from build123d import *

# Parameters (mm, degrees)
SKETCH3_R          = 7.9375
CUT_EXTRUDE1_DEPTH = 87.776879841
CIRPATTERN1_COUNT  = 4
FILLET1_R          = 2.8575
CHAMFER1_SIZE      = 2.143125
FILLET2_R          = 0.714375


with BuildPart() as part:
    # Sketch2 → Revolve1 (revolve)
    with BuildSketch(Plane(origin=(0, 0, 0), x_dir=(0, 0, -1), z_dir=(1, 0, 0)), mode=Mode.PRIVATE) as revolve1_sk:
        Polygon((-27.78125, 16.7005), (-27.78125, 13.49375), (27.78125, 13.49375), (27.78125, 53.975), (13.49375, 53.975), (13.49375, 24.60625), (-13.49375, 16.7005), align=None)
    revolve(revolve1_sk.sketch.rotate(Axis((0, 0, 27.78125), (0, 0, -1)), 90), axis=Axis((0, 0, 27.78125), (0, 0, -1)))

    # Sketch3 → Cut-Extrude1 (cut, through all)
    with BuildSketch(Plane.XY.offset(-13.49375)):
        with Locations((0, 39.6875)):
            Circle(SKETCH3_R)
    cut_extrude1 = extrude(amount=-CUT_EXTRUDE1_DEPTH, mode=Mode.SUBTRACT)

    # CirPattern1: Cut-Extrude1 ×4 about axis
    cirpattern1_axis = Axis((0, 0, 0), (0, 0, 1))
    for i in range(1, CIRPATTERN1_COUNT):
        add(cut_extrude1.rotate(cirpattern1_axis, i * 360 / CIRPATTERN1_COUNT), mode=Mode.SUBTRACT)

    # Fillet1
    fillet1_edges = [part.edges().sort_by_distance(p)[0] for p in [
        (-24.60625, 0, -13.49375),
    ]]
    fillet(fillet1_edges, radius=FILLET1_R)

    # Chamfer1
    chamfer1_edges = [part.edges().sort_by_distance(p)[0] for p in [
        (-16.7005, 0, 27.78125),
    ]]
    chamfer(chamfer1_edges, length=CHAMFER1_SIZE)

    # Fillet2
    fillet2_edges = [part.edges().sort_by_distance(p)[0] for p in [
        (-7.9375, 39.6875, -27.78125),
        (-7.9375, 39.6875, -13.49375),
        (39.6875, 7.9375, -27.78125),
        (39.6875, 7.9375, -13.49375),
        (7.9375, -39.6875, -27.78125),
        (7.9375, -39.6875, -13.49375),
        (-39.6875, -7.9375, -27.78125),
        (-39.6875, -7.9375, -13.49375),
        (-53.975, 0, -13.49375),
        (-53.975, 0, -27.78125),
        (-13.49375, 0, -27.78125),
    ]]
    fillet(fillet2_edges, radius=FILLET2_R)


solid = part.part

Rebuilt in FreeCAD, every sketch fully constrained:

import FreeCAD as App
import Part
import Sketcher

V = App.Vector
Q = App.Units.Quantity


def edges_at(feature, points):
    """Names of the edges that pass closest to the given points."""
    edges = feature.Shape.Edges
    near = lambda p: min(range(len(edges)), key=lambda i: edges[i].distToShape(Part.Vertex(*p))[0])
    return sorted({f"Edge{near(p) + 1}" for p in points})


def add_polygon(sketch, points):
    """Adds a closed chain of lines whose ends are joined by coincident constraints."""
    first, n = sketch.GeometryCount, len(points)
    for a, b in zip(points, points[1:] + points[:1]):
        sketch.addGeometry(Part.LineSegment(App.Vector(*a, 0), App.Vector(*b, 0)), False)
    for i in range(n):
        sketch.addConstraint(Sketcher.Constraint("Coincident", first + i, 2, first + (i + 1) % n, 1))

doc = App.newDocument("Part")
body = doc.addObject("PartDesign::Body", "Body")

sketch1 = body.newObject("Sketcher::SketchObject", "Sketch")
sketch1.AttachmentSupport = (doc.getObject("YZ_Plane"), [""])
sketch1.MapMode = "FlatFace"
add_polygon(sketch1, [(16.7, 27.8), (13.5, 27.8), (13.5, -27.8), (54, -27.8), (54, -13.5), (24.6, -13.5), (16.7, 13.5)])
sketch1.addConstraint([
    Sketcher.Constraint("Horizontal", 0),
    Sketcher.Constraint("Vertical", 1),
    Sketcher.Constraint("Horizontal", 2),
    Sketcher.Constraint("Vertical", 3),
    Sketcher.Constraint("Horizontal", 4),
    Sketcher.Constraint("Vertical", 6),
    Sketcher.Constraint("Equal", 3, 6),
    Sketcher.Constraint("DistanceX", 2, 1, 2, 2, Q("1.59375 in")),
    Sketcher.Constraint("DistanceX", 4, 2, 4, 1, Q("1.15625 in")),
    Sketcher.Constraint("DistanceY", 1, 2, 1, 1, Q("2.1875 in")),
    Sketcher.Constraint("DistanceY", 3, 1, 3, 2, Q("0.5625 in")),
    Sketcher.Constraint("DistanceX", -1, 1, 0, 2, Q("0.53125 in")),
    Sketcher.Constraint("DistanceY", -1, 1, 0, 2, Q("1.09375 in")),
    Sketcher.Constraint("DistanceX", -1, 1, 5, 2, Q("0.6575 in")),
])
revolution = body.newObject("PartDesign::Revolution", "Revolution")
revolution.Profile = sketch1
revolution.ReferenceAxis = (sketch1, ["V_Axis"])
revolution.Angle = 360

sketch2 = body.newObject("Sketcher::SketchObject", "Sketch001")
sketch2.AttachmentSupport = (doc.getObject("XY_Plane"), [""])
sketch2.MapMode = "FlatFace"
sketch2.AttachmentOffset = App.Placement(V(0, 0, -0.53125 * 25.4), App.Rotation())
sketch2.addGeometry(Part.Circle(V(0, 40, 0), V(0, 0, 1), 8), False)
sketch2.addConstraint([
    Sketcher.Constraint("PointOnObject", 0, 3, -2),
    Sketcher.Constraint("Diameter", 0, Q("0.625 in")),
    Sketcher.Constraint("DistanceY", -1, 1, 0, 3, Q("1.5625 in")),
])
pocket1 = body.newObject("PartDesign::Pocket", "Pocket")
pocket1.Profile = sketch2
pocket1.Type = "ThroughAll"
doc.recompute()

polarpattern = body.newObject("PartDesign::PolarPattern", "PolarPattern")
polarpattern.Originals = [pocket1]
polarpattern.Axis = (doc.getObject("Z_Axis"), [""])
polarpattern.Angle = 360
polarpattern.Occurrences = 4
body.Tip = polarpattern
doc.recompute()

fillet = body.newObject("PartDesign::Fillet", "Fillet")
fillet.Base = (polarpattern, edges_at(polarpattern, [(-24.606, 0, -13.494)]))
fillet.Radius = Q("0.1125 in")
doc.recompute()

chamfer = body.newObject("PartDesign::Chamfer", "Chamfer")
chamfer.Base = (fillet, edges_at(fillet, [(-16.701, 0, 27.781)]))
chamfer.Size = 2.143125
doc.recompute()

fillet2 = body.newObject("PartDesign::Fillet", "Fillet001")
fillet2.Base = (chamfer, edges_at(chamfer, [
    (-7.938, 39.688, -27.781),
    (-7.938, 39.688, -13.494),
    (39.688, 7.938, -27.781),
    (39.688, 7.938, -13.494),
    (7.938, -39.688, -27.781),
    (7.938, -39.688, -13.494),
    (-39.688, -7.938, -27.781),
    (-39.688, -7.938, -13.494),
    (-53.975, 0, -13.494),
    (-53.975, 0, -27.781),
    (-13.494, 0, -27.781),
]))
fillet2.Radius = 0.714375

doc.recompute()
